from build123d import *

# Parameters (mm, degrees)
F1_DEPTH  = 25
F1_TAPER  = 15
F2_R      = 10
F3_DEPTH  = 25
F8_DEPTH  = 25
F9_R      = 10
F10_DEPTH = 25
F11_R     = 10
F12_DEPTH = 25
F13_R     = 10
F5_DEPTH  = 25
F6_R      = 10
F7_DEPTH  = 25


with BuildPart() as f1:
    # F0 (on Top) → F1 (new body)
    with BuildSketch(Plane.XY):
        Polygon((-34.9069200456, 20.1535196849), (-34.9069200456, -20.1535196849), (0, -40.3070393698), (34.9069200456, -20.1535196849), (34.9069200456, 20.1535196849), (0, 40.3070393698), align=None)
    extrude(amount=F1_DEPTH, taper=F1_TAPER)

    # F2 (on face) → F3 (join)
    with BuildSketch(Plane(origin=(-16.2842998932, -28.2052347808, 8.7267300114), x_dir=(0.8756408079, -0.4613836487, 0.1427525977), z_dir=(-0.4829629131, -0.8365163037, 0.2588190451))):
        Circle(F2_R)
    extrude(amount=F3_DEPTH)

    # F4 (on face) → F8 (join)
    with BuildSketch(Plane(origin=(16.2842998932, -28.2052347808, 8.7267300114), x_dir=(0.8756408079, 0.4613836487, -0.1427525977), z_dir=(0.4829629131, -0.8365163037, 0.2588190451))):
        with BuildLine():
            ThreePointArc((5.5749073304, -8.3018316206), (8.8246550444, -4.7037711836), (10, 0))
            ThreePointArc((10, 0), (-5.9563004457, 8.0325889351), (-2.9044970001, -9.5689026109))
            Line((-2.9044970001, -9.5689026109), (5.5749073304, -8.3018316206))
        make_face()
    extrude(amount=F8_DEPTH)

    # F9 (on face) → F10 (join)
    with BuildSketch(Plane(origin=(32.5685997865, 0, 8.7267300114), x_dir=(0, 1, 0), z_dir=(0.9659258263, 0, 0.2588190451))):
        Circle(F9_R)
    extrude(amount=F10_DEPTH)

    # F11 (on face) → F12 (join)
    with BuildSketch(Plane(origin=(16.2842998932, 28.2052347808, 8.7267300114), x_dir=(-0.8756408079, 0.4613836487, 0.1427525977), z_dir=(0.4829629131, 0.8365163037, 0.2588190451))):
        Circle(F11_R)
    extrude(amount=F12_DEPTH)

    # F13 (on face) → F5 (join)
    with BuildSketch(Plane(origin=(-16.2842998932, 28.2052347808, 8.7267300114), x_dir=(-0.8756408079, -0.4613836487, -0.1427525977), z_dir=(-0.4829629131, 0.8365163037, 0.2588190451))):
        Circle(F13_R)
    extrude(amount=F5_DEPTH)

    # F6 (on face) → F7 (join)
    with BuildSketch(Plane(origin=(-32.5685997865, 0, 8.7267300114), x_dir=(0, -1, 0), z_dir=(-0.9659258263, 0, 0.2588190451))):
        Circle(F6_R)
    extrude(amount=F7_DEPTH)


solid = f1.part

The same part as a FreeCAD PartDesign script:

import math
import FreeCAD as App
import Part
import Sketcher
Q = App.Units.Quantity

doc = App.newDocument("Part")
body = doc.addObject("PartDesign::Body", "Body")

# Sketch on XY plane
sketch1 = doc.addObject("Sketcher::SketchObject", "Sketch")
body.addObject(sketch1)
sketch1.AttachmentSupport = (doc.XY_Plane, [""])
sketch1.MapMode = "FlatFace"
sketch1.addGeometry([
    Part.LineSegment(App.Vector(-34.90692, 20.15352, 0), App.Vector(-34.90692, -20.15352, 0)),  # 0
    Part.LineSegment(App.Vector(-34.90692, -20.15352, 0), App.Vector(0, -40.307039, 0)),  # 1
    Part.LineSegment(App.Vector(0, -40.307039, 0), App.Vector(34.90692, -20.15352, 0)),  # 2
    Part.LineSegment(App.Vector(34.90692, -20.15352, 0), App.Vector(34.90692, 20.15352, 0)),  # 3
    Part.LineSegment(App.Vector(34.90692, 20.15352, 0), App.Vector(0, 40.307039, 0)),  # 4
    Part.LineSegment(App.Vector(0, 40.307039, 0), App.Vector(-34.90692, 20.15352, 0)),  # 5
], False)
sketch1.addConstraint([
    Sketcher.Constraint("Coincident", 0, 2, 1, 1),
    Sketcher.Constraint("Coincident", 1, 2, 2, 1),
    Sketcher.Constraint("Coincident", 2, 2, 3, 1),
    Sketcher.Constraint("Coincident", 3, 2, 4, 1),
    Sketcher.Constraint("Coincident", 4, 2, 5, 1),
    Sketcher.Constraint("Coincident", 5, 2, 0, 1),
    Sketcher.Constraint("Vertical", 0),
    Sketcher.Constraint("Vertical", 3),
    Sketcher.Constraint("Symmetric", 0, 2, 3, 2, -1, 1),
    Sketcher.Constraint("Symmetric", 1, 2, 4, 2, -1, 1),
    Sketcher.Constraint("PointOnObject", 1, 2, -2),
    Sketcher.Constraint("Parallel", 2, 5),
    Sketcher.Constraint("Horizontal", 0, 2, 2, 2),
    Sketcher.Constraint("Angle", 1, Q("-30 deg")),
    Sketcher.Constraint("DistanceY", 0, 2, 0, 1, Q("40.307039 mm")),
    Sketcher.Constraint("Distance", 1, Q("40.307039 mm")),
])
pad1 = doc.addObject("PartDesign::Pad", "Pad")
body.addObject(pad1)
pad1.Profile = sketch1
pad1.Length = 25
pad1.TaperAngle = -15

# Sketch on an angled plane
sketch2 = doc.addObject("Sketcher::SketchObject", "Sketch001")
body.addObject(sketch2)
sketch2.Placement = App.Placement(App.Vector(-16.2843, -28.205235, 8.72673), App.Rotation(App.Vector(0.875640808, -0.461383649, 0.142752598), App.Vector(0, 0.295576728, 0.955319003), App.Vector(-0.482962913, -0.836516304, 0.258819045), "ZXY"))
sketch2.addGeometry(Part.Circle(App.Vector(0, 0, 0), App.Vector(0, 0, 1), 10), False)
sketch2.addConstraint([
    Sketcher.Constraint("Coincident", 0, 3, -1, 1),
    Sketcher.Constraint("Diameter", 0, Q("20 mm")),
])
pad2 = doc.addObject("PartDesign::Pad", "Pad001")
body.addObject(pad2)
pad2.Profile = sketch2
pad2.Length = 25

# Sketch on an angled plane
sketch3 = doc.addObject("Sketcher::SketchObject", "Sketch002")
body.addObject(sketch3)
sketch3.Placement = App.Placement(App.Vector(16.2843, -28.205235, 8.72673), App.Rotation(App.Vector(0.875640808, 0.461383649, -0.142752598), App.Vector(0, 0.295576728, 0.955319003), App.Vector(0.482962913, -0.836516304, 0.258819045), "ZXY"))
sketch3.addGeometry([
    Part.ArcOfCircle(Part.Circle(App.Vector(0, 0, 0), App.Vector(0, 0, 1), 10), math.radians(-56.117558), math.radians(0)),
    Part.ArcOfCircle(Part.Circle(App.Vector(0, 0, 0), App.Vector(0, 0, 1), 10), math.radians(0), math.radians(253.115119)),
    Part.LineSegment(App.Vector(-2.904497, -9.568903, 0), App.Vector(5.574907, -8.301832, 0)),
], False)
sketch3.addConstraint([
    Sketcher.Constraint("Tangent", 0, 2, 1, 1),
    Sketcher.Constraint("Coincident", 1, 2, 2, 1),
    Sketcher.Constraint("Coincident", 2, 2, 0, 1),
    Sketcher.Constraint("Coincident", 0, 3, -1, 1),
    Sketcher.Constraint("Equal", 0, 1),
    Sketcher.Constraint("PointOnObject", 0, 2, -1),
    Sketcher.Constraint("Radius", 0, Q("10 mm")),
    Sketcher.Constraint("Distance", 2, Q("8.57355 mm")),
    Sketcher.Constraint("DistanceY", 2, 2, -1, 1, Q("8.301832 mm")),
])
pad3 = doc.addObject("PartDesign::Pad", "Pad002")
body.addObject(pad3)
pad3.Profile = sketch3
pad3.Length = 25

# Sketch on an angled plane
sketch4 = doc.addObject("Sketcher::SketchObject", "Sketch003")
body.addObject(sketch4)
sketch4.Placement = App.Placement(App.Vector(32.5686, 0, 8.72673), App.Rotation(App.Vector(0, 1, 0), App.Vector(-0.258819045, 0, 0.965925826), App.Vector(0.965925826, 0, 0.258819045), "ZXY"))
sketch4.addGeometry(Part.Circle(App.Vector(0, 0, 0), App.Vector(0, 0, 1), 10), False)
sketch4.addConstraint([
    Sketcher.Constraint("Coincident", 0, 3, -1, 1),
    Sketcher.Constraint("Diameter", 0, Q("20 mm")),
])
pad4 = doc.addObject("PartDesign::Pad", "Pad003")
body.addObject(pad4)
pad4.Profile = sketch4
pad4.Length = 25

# Sketch on an angled plane
sketch5 = doc.addObject("Sketcher::SketchObject", "Sketch004")
body.addObject(sketch5)
sketch5.Placement = App.Placement(App.Vector(16.2843, 28.205235, 8.72673), App.Rotation(App.Vector(-0.875640808, 0.461383649, 0.142752598), App.Vector(0, -0.295576728, 0.955319003), App.Vector(0.482962913, 0.836516304, 0.258819045), "ZXY"))
sketch5.addGeometry(Part.Circle(App.Vector(0, 0, 0), App.Vector(0, 0, 1), 10), False)
sketch5.addConstraint([
    Sketcher.Constraint("Coincident", 0, 3, -1, 1),
    Sketcher.Constraint("Diameter", 0, Q("20 mm")),
])
pad5 = doc.addObject("PartDesign::Pad", "Pad004")
body.addObject(pad5)
pad5.Profile = sketch5
pad5.Length = 25

# Sketch on an angled plane
sketch6 = doc.addObject("Sketcher::SketchObject", "Sketch005")
body.addObject(sketch6)
sketch6.Placement = App.Placement(App.Vector(-16.2843, 28.205235, 8.72673), App.Rotation(App.Vector(-0.875640808, -0.461383649, -0.142752598), App.Vector(0, -0.295576728, 0.955319003), App.Vector(-0.482962913, 0.836516304, 0.258819045), "ZXY"))
sketch6.addGeometry(Part.Circle(App.Vector(0, 0, 0), App.Vector(0, 0, 1), 10), False)
sketch6.addConstraint([
    Sketcher.Constraint("Coincident", 0, 3, -1, 1),
    Sketcher.Constraint("Diameter", 0, Q("20 mm")),
])
pad6 = doc.addObject("PartDesign::Pad", "Pad005")
body.addObject(pad6)
pad6.Profile = sketch6
pad6.Length = 25

# Sketch on an angled plane
sketch7 = doc.addObject("Sketcher::SketchObject", "Sketch006")
body.addObject(sketch7)
sketch7.Placement = App.Placement(App.Vector(-32.5686, 0, 8.72673), App.Rotation(App.Vector(0, -1, 0), App.Vector(0.258819045, 0, 0.965925826), App.Vector(-0.965925826, 0, 0.258819045), "ZXY"))
sketch7.addGeometry(Part.Circle(App.Vector(0, 0, 0), App.Vector(0, 0, 1), 10), False)
sketch7.addConstraint([
    Sketcher.Constraint("Coincident", 0, 3, -1, 1),
    Sketcher.Constraint("Diameter", 0, Q("20 mm")),
])
pad7 = doc.addObject("PartDesign::Pad", "Pad006")
body.addObject(pad7)
pad7.Profile = sketch7
pad7.Length = 25

doc.recompute()
